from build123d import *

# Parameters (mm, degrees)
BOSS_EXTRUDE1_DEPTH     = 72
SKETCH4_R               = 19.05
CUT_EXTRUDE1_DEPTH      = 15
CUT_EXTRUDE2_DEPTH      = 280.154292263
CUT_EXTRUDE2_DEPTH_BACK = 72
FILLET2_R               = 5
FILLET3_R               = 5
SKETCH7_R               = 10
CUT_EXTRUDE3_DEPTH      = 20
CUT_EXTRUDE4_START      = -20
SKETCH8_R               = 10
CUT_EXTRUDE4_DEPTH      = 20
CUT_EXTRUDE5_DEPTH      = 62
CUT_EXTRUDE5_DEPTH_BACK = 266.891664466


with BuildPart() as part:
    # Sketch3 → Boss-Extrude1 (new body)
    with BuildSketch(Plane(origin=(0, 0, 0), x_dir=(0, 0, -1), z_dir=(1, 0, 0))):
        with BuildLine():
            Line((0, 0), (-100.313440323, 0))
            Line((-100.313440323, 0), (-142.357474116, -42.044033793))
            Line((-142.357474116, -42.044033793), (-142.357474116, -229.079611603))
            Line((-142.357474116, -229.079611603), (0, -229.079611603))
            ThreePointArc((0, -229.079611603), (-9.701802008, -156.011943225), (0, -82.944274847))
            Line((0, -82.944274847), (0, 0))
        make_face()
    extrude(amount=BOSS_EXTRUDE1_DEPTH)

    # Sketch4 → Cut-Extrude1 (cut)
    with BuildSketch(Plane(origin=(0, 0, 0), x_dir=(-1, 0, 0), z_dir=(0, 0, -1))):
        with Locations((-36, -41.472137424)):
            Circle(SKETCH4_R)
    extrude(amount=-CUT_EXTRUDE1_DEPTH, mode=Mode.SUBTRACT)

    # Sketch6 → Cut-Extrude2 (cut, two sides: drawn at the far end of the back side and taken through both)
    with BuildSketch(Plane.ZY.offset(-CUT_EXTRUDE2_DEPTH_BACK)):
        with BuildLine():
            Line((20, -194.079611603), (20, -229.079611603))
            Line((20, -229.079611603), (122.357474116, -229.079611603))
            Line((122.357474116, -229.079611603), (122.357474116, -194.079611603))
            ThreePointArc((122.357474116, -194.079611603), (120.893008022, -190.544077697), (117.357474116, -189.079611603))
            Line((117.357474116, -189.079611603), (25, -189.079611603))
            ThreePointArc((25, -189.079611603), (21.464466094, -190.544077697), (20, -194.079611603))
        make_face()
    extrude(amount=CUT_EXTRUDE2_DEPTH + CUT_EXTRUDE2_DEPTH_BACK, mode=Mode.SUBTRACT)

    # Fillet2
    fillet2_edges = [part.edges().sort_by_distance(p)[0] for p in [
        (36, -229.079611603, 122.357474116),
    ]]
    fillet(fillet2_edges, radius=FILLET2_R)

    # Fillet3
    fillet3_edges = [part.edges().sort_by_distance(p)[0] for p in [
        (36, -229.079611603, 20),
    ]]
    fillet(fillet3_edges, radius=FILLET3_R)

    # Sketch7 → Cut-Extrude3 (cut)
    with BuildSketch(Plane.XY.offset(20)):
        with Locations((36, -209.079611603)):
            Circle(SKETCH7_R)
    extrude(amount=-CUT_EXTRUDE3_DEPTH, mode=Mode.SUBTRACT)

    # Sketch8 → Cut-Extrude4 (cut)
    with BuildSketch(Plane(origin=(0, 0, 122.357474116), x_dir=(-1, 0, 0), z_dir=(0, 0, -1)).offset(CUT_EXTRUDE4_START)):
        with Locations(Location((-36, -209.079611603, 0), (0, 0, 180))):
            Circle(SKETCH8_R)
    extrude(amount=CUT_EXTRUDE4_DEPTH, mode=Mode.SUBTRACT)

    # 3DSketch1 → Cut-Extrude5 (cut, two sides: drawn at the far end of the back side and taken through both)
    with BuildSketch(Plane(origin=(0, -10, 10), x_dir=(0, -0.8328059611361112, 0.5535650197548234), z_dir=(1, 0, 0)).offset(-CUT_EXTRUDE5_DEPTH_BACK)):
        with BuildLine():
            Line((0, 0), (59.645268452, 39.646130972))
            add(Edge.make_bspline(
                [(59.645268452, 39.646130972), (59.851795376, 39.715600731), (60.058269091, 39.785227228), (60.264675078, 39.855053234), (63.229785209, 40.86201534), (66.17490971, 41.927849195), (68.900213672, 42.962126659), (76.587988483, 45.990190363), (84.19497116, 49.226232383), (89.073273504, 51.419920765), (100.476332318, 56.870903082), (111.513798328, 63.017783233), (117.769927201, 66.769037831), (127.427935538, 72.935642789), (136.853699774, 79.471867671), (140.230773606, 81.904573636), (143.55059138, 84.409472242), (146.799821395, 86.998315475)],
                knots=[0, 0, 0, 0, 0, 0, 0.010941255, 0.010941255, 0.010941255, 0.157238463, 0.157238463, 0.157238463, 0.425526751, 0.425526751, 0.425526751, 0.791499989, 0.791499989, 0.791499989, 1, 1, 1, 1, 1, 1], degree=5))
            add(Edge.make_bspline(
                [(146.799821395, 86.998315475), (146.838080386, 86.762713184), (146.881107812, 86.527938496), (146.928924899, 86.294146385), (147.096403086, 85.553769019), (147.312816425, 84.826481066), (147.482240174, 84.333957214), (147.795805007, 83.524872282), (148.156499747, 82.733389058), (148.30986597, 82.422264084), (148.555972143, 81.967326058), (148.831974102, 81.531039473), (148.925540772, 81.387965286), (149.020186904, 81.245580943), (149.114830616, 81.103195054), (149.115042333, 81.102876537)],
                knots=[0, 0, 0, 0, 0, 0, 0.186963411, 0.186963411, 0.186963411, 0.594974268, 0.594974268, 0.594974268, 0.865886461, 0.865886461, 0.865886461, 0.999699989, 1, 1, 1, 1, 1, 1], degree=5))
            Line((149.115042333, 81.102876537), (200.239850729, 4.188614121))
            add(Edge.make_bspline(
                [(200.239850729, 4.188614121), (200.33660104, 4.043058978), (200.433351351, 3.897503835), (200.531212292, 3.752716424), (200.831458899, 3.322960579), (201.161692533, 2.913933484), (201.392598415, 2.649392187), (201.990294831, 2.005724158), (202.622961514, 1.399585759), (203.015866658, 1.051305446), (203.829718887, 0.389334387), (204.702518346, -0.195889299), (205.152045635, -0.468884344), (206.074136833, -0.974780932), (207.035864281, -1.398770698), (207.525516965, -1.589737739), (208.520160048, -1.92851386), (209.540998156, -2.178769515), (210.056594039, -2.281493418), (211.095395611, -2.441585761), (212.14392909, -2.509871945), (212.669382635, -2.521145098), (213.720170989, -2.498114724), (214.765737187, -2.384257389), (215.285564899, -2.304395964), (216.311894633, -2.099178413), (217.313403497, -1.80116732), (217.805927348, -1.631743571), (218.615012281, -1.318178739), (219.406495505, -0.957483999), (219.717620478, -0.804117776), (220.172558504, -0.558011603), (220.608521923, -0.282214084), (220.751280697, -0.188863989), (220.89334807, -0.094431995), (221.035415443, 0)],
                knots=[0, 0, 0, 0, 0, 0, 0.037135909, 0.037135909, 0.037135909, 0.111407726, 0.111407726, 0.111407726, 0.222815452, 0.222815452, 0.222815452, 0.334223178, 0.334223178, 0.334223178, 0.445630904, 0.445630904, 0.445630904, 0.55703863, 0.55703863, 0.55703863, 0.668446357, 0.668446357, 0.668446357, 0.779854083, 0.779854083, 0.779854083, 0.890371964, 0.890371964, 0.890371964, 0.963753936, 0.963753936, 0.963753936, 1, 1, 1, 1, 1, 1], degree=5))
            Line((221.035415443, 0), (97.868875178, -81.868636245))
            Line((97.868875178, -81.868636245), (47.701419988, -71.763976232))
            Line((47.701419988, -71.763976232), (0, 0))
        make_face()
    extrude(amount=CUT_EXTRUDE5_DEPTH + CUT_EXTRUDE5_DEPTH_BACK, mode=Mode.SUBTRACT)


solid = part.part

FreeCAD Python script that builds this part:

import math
import FreeCAD as App
import Part
import Sketcher
Q = App.Units.Quantity


def edges_at(feature, points):
    """Names of the edges that pass closest to the given points."""
    edges = feature.Shape.Edges
    near = lambda p: min(range(len(edges)), key=lambda i: edges[i].distToShape(Part.Vertex(*p))[0])
    return sorted({f"Edge{near(p) + 1}" for p in points})

doc = App.newDocument("Part")
params = doc.addObject("Spreadsheet::Sheet", "Params")
for row, (alias, value) in enumerate([
    ("sketch1_radius", "280 mm"),
    ("pad1_length", "72 mm"),
    ("sketch2_diameter", "38.1 mm"),
    ("pocket1_length", "15 mm"),
    ("sketch3_radius", "5 mm"),
    ("sketch3_width", "35 mm"),
    ("fillet_radius", "5 mm"),
    ("fillet2_radius", "5 mm"),
    ("sketch4_diameter", "20 mm"),
    ("pocket3_length", "20 mm"),
    ("sketch5_diameter", "20 mm"),
    ("pocket4_length", "20 mm"),
    ("pocket5_length", "62 mm"),
    ("pocket5_length2", "266.891664 mm"),
], start=1):
    params.set(f"A{row}", alias)
    params.set(f"B{row}", "=" + value)
    params.setAlias(f"B{row}", alias)

body = doc.addObject("PartDesign::Body", "Body")

# Sketch on YZ plane
sketch1 = body.newObject("Sketcher::SketchObject", "Sketch")
sketch1.AttachmentSupport = (doc.getObject("YZ_Plane"), [""])
sketch1.MapMode = "FlatFace"
sketch1.addGeometry(Part.LineSegment(App.Vector(0, 0, 0), App.Vector(0, 100, 0)), False)
sketch1.addGeometry(Part.LineSegment(App.Vector(0, 100, 0), App.Vector(-42, 142, 0)), False)
sketch1.addGeometry(Part.LineSegment(App.Vector(-42, 142, 0), App.Vector(-229, 142, 0)), False)
sketch1.addGeometry(Part.LineSegment(App.Vector(-229, 142, 0), App.Vector(-229, 0, 0)), False)
sketch1.addGeometry(Part.ArcOfCircle(Part.Circle(App.Vector(-156, -270, 0), App.Vector(0, 0, 1), 280), math.radians(75), math.radians(105)), False)
sketch1.addGeometry(Part.LineSegment(App.Vector(-83, 0, 0), App.Vector(0, 0, 0)), False)
sketch1.addConstraint(Sketcher.Constraint("Coincident", 0, 2, 1, 1))
sketch1.addConstraint(Sketcher.Constraint("Coincident", 1, 2, 2, 1))
sketch1.addConstraint(Sketcher.Constraint("Coincident", 2, 2, 3, 1))
sketch1.addConstraint(Sketcher.Constraint("Coincident", 3, 2, 4, 2))
sketch1.addConstraint(Sketcher.Constraint("Coincident", 4, 1, 5, 1))
sketch1.addConstraint(Sketcher.Constraint("Coincident", 5, 2, 0, 1))
sketch1.addConstraint(Sketcher.Constraint("Vertical", 0))
sketch1.addConstraint(Sketcher.Constraint("Horizontal", 2))
sketch1.addConstraint(Sketcher.Constraint("Vertical", 3))
sketch1.addConstraint(Sketcher.Constraint("Horizontal", 5))
sketch1.addConstraint(Sketcher.Constraint("Coincident", 5, 2, -1, 1))
sketch1.addConstraint(Sketcher.Constraint("PointOnObject", 3, 2, -1))
sketch1.addConstraint(Sketcher.Constraint("Radius", 4, Q("280 mm")))
sketch1.addConstraint(Sketcher.Constraint("Angle", 1, Q("135 deg")))
sketch1.addConstraint(Sketcher.Constraint("DistanceY", 0, 1, 0, 2, Q("100.31344 mm")))
sketch1.addConstraint(Sketcher.Constraint("DistanceX", 2, 2, 2, 1, Q("187.035578 mm")))
sketch1.addConstraint(Sketcher.Constraint("DistanceX", 5, 1, 5, 2, Q("82.944275 mm")))
sketch1.addConstraint(Sketcher.Constraint("DistanceY", 3, 2, 3, 1, Q("142.357474 mm")))
sketch1.setExpression("Constraints[12]", "Params.sketch1_radius")
pad1 = body.newObject("PartDesign::Pad", "Pad")
pad1.Profile = sketch1
pad1.setExpression("Length", "Params.pad1_length")

# Sketch on XY plane
sketch2 = body.newObject("Sketcher::SketchObject", "Sketch001")
sketch2.AttachmentSupport = (doc.getObject("XY_Plane"), [""])
sketch2.MapMode = "FlatFace"
sketch2.addGeometry(Part.Circle(App.Vector(36, -41, 0), App.Vector(0, 0, 1), 19), False)
sketch2.addConstraint(Sketcher.Constraint("Diameter", 0, Q("38.1 mm")))
sketch2.addConstraint(Sketcher.Constraint("DistanceX", -1, 1, 0, 3, Q("36 mm")))
sketch2.addConstraint(Sketcher.Constraint("DistanceY", 0, 3, -1, 1, Q("41.472137 mm")))
sketch2.setExpression("Constraints[0]", "Params.sketch2_diameter")
pocket1 = body.newObject("PartDesign::Pocket", "Pocket")
pocket1.Profile = sketch2
pocket1.setExpression("Length", "Params.pocket1_length")
pocket1.Reversed = True

# Sketch on YZ plane
sketch3 = body.newObject("Sketcher::SketchObject", "Sketch002")
sketch3.AttachmentSupport = (doc.getObject("YZ_Plane"), [""])
sketch3.MapMode = "FlatFace"
sketch3.addGeometry(Part.LineSegment(App.Vector(-194, 20, 0), App.Vector(-229, 20, 0)), False)
sketch3.addGeometry(Part.LineSegment(App.Vector(-229, 20, 0), App.Vector(-229, 122, 0)), False)
sketch3.addGeometry(Part.LineSegment(App.Vector(-229, 122, 0), App.Vector(-194, 122, 0)), False)
sketch3.addGeometry(Part.ArcOfCircle(Part.Circle(App.Vector(-194, 117, 0), App.Vector(0, 0, 1), 5), math.radians(0), math.radians(90)), False)
sketch3.addGeometry(Part.LineSegment(App.Vector(-189, 117, 0), App.Vector(-189, 25, 0)), False)
sketch3.addGeometry(Part.ArcOfCircle(Part.Circle(App.Vector(-194, 25, 0), App.Vector(0, 0, 1), 5), math.radians(-90), math.radians(0)), False)
sketch3.addConstraint(Sketcher.Constraint("Coincident", 0, 2, 1, 1))
sketch3.addConstraint(Sketcher.Constraint("Coincident", 1, 2, 2, 1))
sketch3.addConstraint(Sketcher.Constraint("Tangent", 2, 2, 3, 2))
sketch3.addConstraint(Sketcher.Constraint("Tangent", 3, 1, 4, 1))
sketch3.addConstraint(Sketcher.Constraint("Tangent", 4, 2, 5, 2))
sketch3.addConstraint(Sketcher.Constraint("Tangent", 5, 1, 0, 1))
sketch3.addConstraint(Sketcher.Constraint("Horizontal", 0))
sketch3.addConstraint(Sketcher.Constraint("Vertical", 1))
sketch3.addConstraint(Sketcher.Constraint("Horizontal", 2))
sketch3.addConstraint(Sketcher.Constraint("Vertical", 4))
sketch3.addConstraint(Sketcher.Constraint("Equal", 3, 5))
sketch3.addConstraint(Sketcher.Constraint("Radius", 3, Q("5 mm")))
sketch3.addConstraint(Sketcher.Constraint("DistanceX", 0, 2, 0, 1, Q("35 mm")))
sketch3.addConstraint(Sketcher.Constraint("DistanceY", -1, 1, 5, 3, Q("25 mm")))
sketch3.addConstraint(Sketcher.Constraint("DistanceY", 1, 1, 1, 2, Q("102.357474 mm")))
sketch3.addConstraint(Sketcher.Constraint("DistanceX", 3, 3, -1, 1, Q("194.079612 mm")))
sketch3.setExpression("Constraints[11]", "Params.sketch3_radius")
sketch3.setExpression("Constraints[12]", "Params.sketch3_width")
pocket2 = body.newObject("PartDesign::Pocket", "Pocket001")
pocket2.Profile = sketch3
pocket2.Type = "ThroughAll"
pocket2.Midplane = True
doc.recompute()

fillet = body.newObject("PartDesign::Fillet", "Fillet")
fillet.Base = (pocket2, edges_at(pocket2, [(36, -229.08, 122.357)]))
fillet.setExpression("Radius", "Params.fillet_radius")
doc.recompute()

fillet2 = body.newObject("PartDesign::Fillet", "Fillet001")
fillet2.Base = (fillet, edges_at(fillet, [(36, -229.08, 20)]))
fillet2.setExpression("Radius", "Params.fillet2_radius")

# Sketch on XY plane
sketch4 = body.newObject("Sketcher::SketchObject", "Sketch003")
sketch4.AttachmentSupport = (doc.getObject("XY_Plane"), [""])
sketch4.MapMode = "FlatFace"
sketch4.AttachmentOffset = App.Placement(App.Vector(0, 0, 20), App.Rotation())
sketch4.addGeometry(Part.Circle(App.Vector(36, -209, 0), App.Vector(0, 0, 1), 10), False)
sketch4.addConstraint(Sketcher.Constraint("Diameter", 0, Q("20 mm")))
sketch4.addConstraint(Sketcher.Constraint("DistanceX", -1, 1, 0, 3, Q("36 mm")))
sketch4.addConstraint(Sketcher.Constraint("DistanceY", 0, 3, -1, 1, Q("209.079612 mm")))
sketch4.setExpression("Constraints[0]", "Params.sketch4_diameter")
pocket3 = body.newObject("PartDesign::Pocket", "Pocket002")
pocket3.Profile = sketch4
pocket3.setExpression("Length", "Params.pocket3_length")

# Sketch on XY plane
sketch5 = body.newObject("Sketcher::SketchObject", "Sketch004")
sketch5.AttachmentSupport = (doc.getObject("XY_Plane"), [""])
sketch5.MapMode = "FlatFace"
sketch5.AttachmentOffset = App.Placement(App.Vector(0, 0, 142.357474), App.Rotation())
sketch5.addGeometry(Part.Circle(App.Vector(36, -209, 0), App.Vector(0, 0, 1), 10), False)
sketch5.addConstraint(Sketcher.Constraint("Diameter", 0, Q("20 mm")))
sketch5.addConstraint(Sketcher.Constraint("DistanceX", -1, 1, 0, 3, Q("36 mm")))
sketch5.addConstraint(Sketcher.Constraint("DistanceY", 0, 3, -1, 1, Q("209.079612 mm")))
sketch5.setExpression("Constraints[0]", "Params.sketch5_diameter")
pocket4 = body.newObject("PartDesign::Pocket", "Pocket003")
pocket4.Profile = sketch5
pocket4.setExpression("Length", "Params.pocket4_length")

# Sketch on YZ plane
sketch6 = body.newObject("Sketcher::SketchObject", "Sketch005")
sketch6.AttachmentSupport = (doc.getObject("YZ_Plane"), [""])
sketch6.MapMode = "FlatFace"
sketch6.addGeometry(Part.LineSegment(App.Vector(-81.619646, 10, 0), App.Vector(-10, 10, 0)), False)
sketch6.addGeometry(Part.LineSegment(App.Vector(-10, 10, 0), App.Vector(-10, 96.171305, 0)), False)
sketch6.addGeometry(Part.LineSegment(App.Vector(-10, 96.171305, 0), App.Vector(-46.186169, 132.357474, 0)), False)
sketch6.addGeometry(Part.LineSegment(App.Vector(-46.186169, 132.357474, 0), App.Vector(-194.079612, 132.357474, 0)), False)
sketch6.addGeometry(Part.BSplineCurve([App.Vector(-179.079612, 117.357474, 0), App.Vector(-179.079612, 117.532251, 0), App.Vector(-179.079612, 117.707028, 0), App.Vector(-179.080962, 117.88178, 0), App.Vector(-179.093111, 118.405889, 0), App.Vector(-179.141708, 118.929335, 0), App.Vector(-179.187567, 119.277468, 0), App.Vector(-179.32902, 120.144383, 0), App.Vector(-179.520372, 120.9994, 0), App.Vector(-179.65479, 121.506949, 0), App.Vector(-179.966127, 122.508762, 0), App.Vector(-180.36904, 123.479291, 0), App.Vector(-180.592289, 123.955486, 0), App.Vector(-181.080165, 124.887237, 0), App.Vector(-181.646391, 125.772717, 0), App.Vector(-181.948464, 126.20281, 0), App.Vector(-182.589274, 127.035544, 0), App.Vector(-183.300902, 127.809059, 0), App.Vector(-183.673429, 128.180024, 0), App.Vector(-184.449927, 128.888394, 0), App.Vector(-185.285351, 129.525695, 0), App.Vector(-185.716712, 129.825956, 0), App.Vector(-186.604563, 130.388456, 0), App.Vector(-187.538345, 130.872423, 0), App.Vector(-188.015469, 131.093673, 0), App.Vector(-188.983804, 131.490907, 0), App.Vector(-189.982835, 131.797121, 0), App.Vector(-190.486798, 131.928668, 0), App.Vector(-191.334188, 132.115411, 0), App.Vector(-192.193008, 132.253159, 0), App.Vector(-192.537013, 132.297663, 0), App.Vector(-193.052123, 132.344542, 0), App.Vector(-193.567868, 132.35619, 0), App.Vector(-193.738434, 132.357474, 0), App.Vector(-193.909023, 132.357474, 0), App.Vector(-194.079612, 132.357474, 0)], [6, 3, 3, 3, 3, 3, 3, 3, 3, 3, 3, 6], [0, 0.037135909, 0.111407726, 0.222815452, 0.334223178, 0.445630904, 0.55703863, 0.668446357, 0.779854083, 0.890371964, 0.963753936, 1], False, 5, [1, 1, 1, 1, 1, 1, 1, 1, 1, 1, 1, 1, 1, 1, 1, 1, 1, 1, 1, 1, 1, 1, 1, 1, 1, 1, 1, 1, 1, 1, 1, 1, 1, 1, 1, 1], False), False)
sketch6.addGeometry(Part.LineSegment(App.Vector(-179.079612, 117.357474, 0), App.Vector(-179.079612, 25.001912, 0)), False)
sketch6.addGeometry(Part.BSplineCurve([App.Vector(-180.414991, 18.81053, 0), App.Vector(-180.316432, 19.02792, 0), App.Vector(-180.222302, 19.24726, 0), App.Vector(-180.132705, 19.468434, 0), App.Vector(-179.862335, 20.177734, 0), App.Vector(-179.639964, 20.903223, 0), App.Vector(-179.508417, 21.407187, 0), App.Vector(-179.321675, 22.254576, 0), App.Vector(-179.183926, 23.113396, 0), App.Vector(-179.139423, 23.457401, 0), App.Vector(-179.092544, 23.972512, 0), App.Vector(-179.080887, 24.488639, 0), App.Vector(-179.079609, 24.659587, 0), App.Vector(-179.079612, 24.830559, 0), App.Vector(-179.079612, 25.00153, 0), App.Vector(-179.079612, 25.001912, 0)], [6, 3, 3, 3, 1, 6], [0, 0.186963411, 0.594974268, 0.865886461, 0.999699989, 1], False, 5, [1, 1, 1, 1, 1, 1, 1, 1, 1, 1, 1, 1, 1, 1, 1, 1], False), False)
sketch6.addGeometry(Part.BSplineCurve([App.Vector(-81.619646, 10, 0), App.Vector(-81.830099, 10.056471, 0), App.Vector(-82.040595, 10.112783, 0), App.Vector(-82.251144, 10.16889, 0), App.Vector(-85.277924, 10.971667, 0), App.Vector(-88.32065, 11.714352, 0), App.Vector(-91.162839, 12.361633, 0), App.Vector(-99.241494, 14.095527, 0), App.Vector(-107.367994, 15.611491, 0), App.Vector(-112.645023, 16.485032, 0), App.Vector(-125.159031, 18.257756, 0), App.Vector(-137.753796, 19.248552, 0), App.Vector(-145.040501, 19.587659, 0), App.Vector(-156.497365, 19.79841, 0), App.Vector(-167.965423, 19.572776, 0), App.Vector(-172.124531, 19.416234, 0), App.Vector(-176.275919, 19.167874, 0), App.Vector(-180.414991, 18.81053, 0)], [6, 3, 3, 3, 3, 6], [0, 0.010941255, 0.157238463, 0.425526751, 0.791499989, 1], False, 5, [1, 1, 1, 1, 1, 1, 1, 1, 1, 1, 1, 1, 1, 1, 1, 1, 1, 1], False), False)
sketch6.addConstraint(Sketcher.Constraint("Block", 4))
sketch6.addConstraint(Sketcher.Constraint("Block", 6))
sketch6.addConstraint(Sketcher.Constraint("Block", 7))
sketch6.addConstraint(Sketcher.Constraint("Coincident", 0, 2, 1, 1))
sketch6.addConstraint(Sketcher.Constraint("Coincident", 1, 2, 2, 1))
sketch6.addConstraint(Sketcher.Constraint("Coincident", 2, 2, 3, 1))
sketch6.addConstraint(Sketcher.Constraint("Coincident", 3, 2, 4, 2))
sketch6.addConstraint(Sketcher.Constraint("Coincident", 4, 1, 5, 1))
sketch6.addConstraint(Sketcher.Constraint("Coincident", 5, 2, 6, 2))
sketch6.addConstraint(Sketcher.Constraint("Coincident", 7, 1, 0, 1))
sketch6.addConstraint(Sketcher.Constraint("Horizontal", 0))
sketch6.addConstraint(Sketcher.Constraint("Vertical", 1))
sketch6.addConstraint(Sketcher.Constraint("Horizontal", 3))
sketch6.addConstraint(Sketcher.Constraint("Angle", 2, Q("135 deg")))
sketch6.addConstraint(Sketcher.Constraint("DistanceX", 0, 2, -1, 1, Q("10 mm")))
sketch6.addConstraint(Sketcher.Constraint("Distance", 2, Q("51.174972 mm")))
pocket5 = body.newObject("PartDesign::Pocket", "Pocket004")
pocket5.Profile = sketch6
pocket5.Type = "TwoLengths"
pocket5.setExpression("Length", "Params.pocket5_length")
pocket5.setExpression("Length2", "Params.pocket5_length2")
pocket5.Reversed = True

doc.recompute()
